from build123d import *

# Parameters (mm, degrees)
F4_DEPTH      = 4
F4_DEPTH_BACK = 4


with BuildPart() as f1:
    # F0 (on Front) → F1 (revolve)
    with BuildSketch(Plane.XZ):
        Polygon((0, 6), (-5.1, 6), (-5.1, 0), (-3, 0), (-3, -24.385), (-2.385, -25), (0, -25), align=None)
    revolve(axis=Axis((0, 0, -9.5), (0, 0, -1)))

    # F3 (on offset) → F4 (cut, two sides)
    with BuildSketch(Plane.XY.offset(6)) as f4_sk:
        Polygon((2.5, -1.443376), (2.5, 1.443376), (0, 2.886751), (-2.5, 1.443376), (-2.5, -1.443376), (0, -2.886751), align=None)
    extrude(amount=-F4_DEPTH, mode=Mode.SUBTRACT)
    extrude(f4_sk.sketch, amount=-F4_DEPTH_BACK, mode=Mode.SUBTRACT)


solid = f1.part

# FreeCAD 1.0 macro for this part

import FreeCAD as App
import Part
import Sketcher
from FreeCAD import Vector
Q = App.Units.Quantity

doc = App.newDocument("Part")
params = doc.addObject("Spreadsheet::Sheet", "Params")
for row, (alias, value) in enumerate([
    ("sketch1_height", "6 mm"),
    ("sketch1_height2", "31 mm"),
    ("sketch1_width", "5.1 mm"),
    ("sketch1_width2", "2.1 mm"),
    ("revolution_angle", "360 deg"),
    ("pocket1_length", "4 mm"),
    ("pocket2_length", "4 mm"),
], start=1):
    params.set(f"A{row}", alias)
    params.set(f"B{row}", "=" + value)
    params.setAlias(f"B{row}", alias)

body = doc.addObject("PartDesign::Body", "Body")

sketch1 = body.newObject("Sketcher::SketchObject", "Sketch")
sketch1.AttachmentSupport = (doc.getObject("XZ_Plane"), [""])
sketch1.MapMode = "FlatFace"
sketch1.addGeometry(Part.LineSegment(Vector(0, 6, 0), Vector(-5.1, 6, 0)), False)
sketch1.addGeometry(Part.LineSegment(Vector(-5.1, 6, 0), Vector(-5.1, 0, 0)), False)
sketch1.addGeometry(Part.LineSegment(Vector(-5.1, 0, 0), Vector(-3, 0, 0)), False)
sketch1.addGeometry(Part.LineSegment(Vector(-3, 0, 0), Vector(-3, -24.4, 0)), False)
sketch1.addGeometry(Part.LineSegment(Vector(-3, -24.4, 0), Vector(-2.4, -25, 0)), False)
sketch1.addGeometry(Part.LineSegment(Vector(-2.4, -25, 0), Vector(0, -25, 0)), False)
sketch1.addGeometry(Part.LineSegment(Vector(0, -25, 0), Vector(0, 6, 0)), False)
sketch1.addConstraint(Sketcher.Constraint("Coincident", 0, 2, 1, 1))
sketch1.addConstraint(Sketcher.Constraint("Coincident", 1, 2, 2, 1))
sketch1.addConstraint(Sketcher.Constraint("Coincident", 2, 2, 3, 1))
sketch1.addConstraint(Sketcher.Constraint("Coincident", 3, 2, 4, 1))
sketch1.addConstraint(Sketcher.Constraint("Coincident", 4, 2, 5, 1))
sketch1.addConstraint(Sketcher.Constraint("Coincident", 5, 2, 6, 1))
sketch1.addConstraint(Sketcher.Constraint("Coincident", 6, 2, 0, 1))
sketch1.addConstraint(Sketcher.Constraint("Horizontal", 0))
sketch1.addConstraint(Sketcher.Constraint("Vertical", 1))
sketch1.addConstraint(Sketcher.Constraint("Horizontal", 2))
sketch1.addConstraint(Sketcher.Constraint("Vertical", 3))
sketch1.addConstraint(Sketcher.Constraint("Horizontal", 5))
sketch1.addConstraint(Sketcher.Constraint("Vertical", 6))
sketch1.addConstraint(Sketcher.Constraint("PointOnObject", 1, 2, -1))
sketch1.addConstraint(Sketcher.Constraint("PointOnObject", 5, 2, -2))
sketch1.addConstraint(Sketcher.Constraint("DistanceY", 1, 2, 1, 1, 6.0))
sketch1.addConstraint(Sketcher.Constraint("DistanceY", 6, 1, 6, 2, 31.0))
sketch1.addConstraint(Sketcher.Constraint("Angle", 4, Q("-45 deg")))
sketch1.addConstraint(Sketcher.Constraint("DistanceX", 0, 2, 0, 1, 5.1))
sketch1.addConstraint(Sketcher.Constraint("DistanceX", 2, 1, 2, 2, 2.1))
sketch1.addConstraint(Sketcher.Constraint("DistanceX", 5, 1, 5, 2, 2.385))
sketch1.setExpression("Constraints[15]", "Params.sketch1_height")
sketch1.setExpression("Constraints[16]", "Params.sketch1_height2")
sketch1.setExpression("Constraints[18]", "Params.sketch1_width")
sketch1.setExpression("Constraints[19]", "Params.sketch1_width2")
revolution = body.newObject("PartDesign::Revolution", "Revolution")
revolution.Profile = sketch1
revolution.ReferenceAxis = (sketch1, ["V_Axis"])
revolution.setExpression("Angle", "Params.revolution_angle")

sketch2 = body.newObject("Sketcher::SketchObject", "Sketch001")
sketch2.AttachmentSupport = (doc.getObject("XY_Plane"), [""])
sketch2.MapMode = "FlatFace"
sketch2.AttachmentOffset = App.Placement(Vector(0, 0, 6), App.Rotation())
sketch2.addGeometry(Part.LineSegment(Vector(2.5, -1.4, 0), Vector(2.5, 1.4, 0)), False)
sketch2.addGeometry(Part.LineSegment(Vector(2.5, 1.4, 0), Vector(0, 2.9, 0)), False)
sketch2.addGeometry(Part.LineSegment(Vector(0, 2.9, 0), Vector(-2.5, 1.4, 0)), False)
sketch2.addGeometry(Part.LineSegment(Vector(-2.5, 1.4, 0), Vector(-2.5, -1.4, 0)), False)
sketch2.addGeometry(Part.LineSegment(Vector(-2.5, -1.4, 0), Vector(0, -2.9, 0)), False)
sketch2.addGeometry(Part.LineSegment(Vector(0, -2.9, 0), Vector(2.5, -1.4, 0)), False)
sketch2.addConstraint(Sketcher.Constraint("Coincident", 0, 2, 1, 1))
sketch2.addConstraint(Sketcher.Constraint("Coincident", 1, 2, 2, 1))
sketch2.addConstraint(Sketcher.Constraint("Coincident", 2, 2, 3, 1))
sketch2.addConstraint(Sketcher.Constraint("Coincident", 3, 2, 4, 1))
sketch2.addConstraint(Sketcher.Constraint("Coincident", 4, 2, 5, 1))
sketch2.addConstraint(Sketcher.Constraint("Coincident", 5, 2, 0, 1))
sketch2.addConstraint(Sketcher.Constraint("Vertical", 0))
sketch2.addConstraint(Sketcher.Constraint("Vertical", 3))
sketch2.addConstraint(Sketcher.Constraint("Symmetric", 0, 2, 3, 2, -1, 1))
sketch2.addConstraint(Sketcher.Constraint("Symmetric", 1, 2, 4, 2, -1, 1))
sketch2.addConstraint(Sketcher.Constraint("PointOnObject", 1, 2, -2))
sketch2.addConstraint(Sketcher.Constraint("Parallel", 2, 5))
sketch2.addConstraint(Sketcher.Constraint("Horizontal", 0, 2, 2, 2))
sketch2.addConstraint(Sketcher.Constraint("Angle", 1, Q("150.000012 deg")))
sketch2.addConstraint(Sketcher.Constraint("DistanceX", 2, 2, 0, 2, 5.0))
sketch2.addConstraint(Sketcher.Constraint("DistanceY", 0, 1, 0, 2, 2.886752))
pocket1 = body.newObject("PartDesign::Pocket", "Pocket")
pocket1.Profile = sketch2
pocket1.setExpression("Length", "Params.pocket1_length")
pocket2 = body.newObject("PartDesign::Pocket", "Pocket001")
pocket2.Profile = sketch2
pocket2.setExpression("Length", "Params.pocket2_length")

doc.recompute()
